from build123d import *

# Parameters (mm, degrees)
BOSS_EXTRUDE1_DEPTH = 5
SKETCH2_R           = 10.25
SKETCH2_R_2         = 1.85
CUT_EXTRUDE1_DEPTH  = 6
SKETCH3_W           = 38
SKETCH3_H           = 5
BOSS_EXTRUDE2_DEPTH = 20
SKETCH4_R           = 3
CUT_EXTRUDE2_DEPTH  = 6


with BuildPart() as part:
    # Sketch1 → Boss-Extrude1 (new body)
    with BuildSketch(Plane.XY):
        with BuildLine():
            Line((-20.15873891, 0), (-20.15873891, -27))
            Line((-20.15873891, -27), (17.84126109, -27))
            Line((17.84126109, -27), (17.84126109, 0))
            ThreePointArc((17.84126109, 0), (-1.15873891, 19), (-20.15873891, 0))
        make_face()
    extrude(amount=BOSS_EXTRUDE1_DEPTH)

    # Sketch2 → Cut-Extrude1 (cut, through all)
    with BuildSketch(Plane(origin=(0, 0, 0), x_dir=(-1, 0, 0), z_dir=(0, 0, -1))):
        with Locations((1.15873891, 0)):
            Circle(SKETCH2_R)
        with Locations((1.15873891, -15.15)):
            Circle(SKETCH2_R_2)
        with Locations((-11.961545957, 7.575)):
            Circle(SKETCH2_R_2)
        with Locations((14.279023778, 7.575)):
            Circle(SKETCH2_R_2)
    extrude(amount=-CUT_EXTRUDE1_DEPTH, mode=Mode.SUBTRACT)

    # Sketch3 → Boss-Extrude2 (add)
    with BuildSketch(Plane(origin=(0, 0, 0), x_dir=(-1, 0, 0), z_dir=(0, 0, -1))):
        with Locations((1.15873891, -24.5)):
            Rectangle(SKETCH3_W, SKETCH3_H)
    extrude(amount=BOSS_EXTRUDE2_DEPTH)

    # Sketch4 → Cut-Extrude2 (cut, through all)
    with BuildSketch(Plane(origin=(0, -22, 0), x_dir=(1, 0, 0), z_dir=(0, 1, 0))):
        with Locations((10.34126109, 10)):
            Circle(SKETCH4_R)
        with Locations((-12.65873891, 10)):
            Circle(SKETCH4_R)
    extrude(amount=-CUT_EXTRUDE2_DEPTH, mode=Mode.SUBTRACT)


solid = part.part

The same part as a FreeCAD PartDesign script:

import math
import FreeCAD as App
import Part
import Sketcher
from FreeCAD import Vector
Q = App.Units.Quantity

doc = App.newDocument("Part")
body = doc.addObject("PartDesign::Body", "Body")

sketch1 = doc.addObject("Sketcher::SketchObject", "Sketch")
body.addObject(sketch1)
sketch1.AttachmentSupport = (doc.XY_Plane, [""])
sketch1.MapMode = "FlatFace"
sketch1.addGeometry(Part.LineSegment(Vector(-20, 0, 0), Vector(-20, -27, 0)), False)
sketch1.addGeometry(Part.LineSegment(Vector(-20, -27, 0), Vector(18, -27, 0)), False)
sketch1.addGeometry(Part.LineSegment(Vector(18, -27, 0), Vector(18, 0, 0)), False)
sketch1.addGeometry(Part.ArcOfCircle(Part.Circle(Vector(-1, 0, 0), Vector(0, 0, 1), 19), math.radians(0), math.radians(180)), False)
sketch1.addConstraint(Sketcher.Constraint("Coincident", 0, 2, 1, 1))
sketch1.addConstraint(Sketcher.Constraint("Coincident", 1, 2, 2, 1))
sketch1.addConstraint(Sketcher.Constraint("Tangent", 2, 2, 3, 1))
sketch1.addConstraint(Sketcher.Constraint("Tangent", 3, 2, 0, 1))
sketch1.addConstraint(Sketcher.Constraint("Vertical", 0))
sketch1.addConstraint(Sketcher.Constraint("Horizontal", 1))
sketch1.addConstraint(Sketcher.Constraint("Vertical", 2))
sketch1.addConstraint(Sketcher.Constraint("PointOnObject", 3, 3, -1))
sketch1.addConstraint(Sketcher.Constraint("Radius", 3, Q("19 mm")))
sketch1.addConstraint(Sketcher.Constraint("DistanceY", 0, 2, 0, 1, Q("27 mm")))
sketch1.addConstraint(Sketcher.Constraint("DistanceX", 3, 3, -1, 1, Q("1.158739 mm")))
pad1 = doc.addObject("PartDesign::Pad", "Pad")
body.addObject(pad1)
pad1.Profile = sketch1
pad1.Length = 5

sketch2 = doc.addObject("Sketcher::SketchObject", "Sketch001")
body.addObject(sketch2)
sketch2.AttachmentSupport = (doc.XY_Plane, [""])
sketch2.MapMode = "FlatFace"
sketch2.addGeometry(Part.Circle(Vector(-1.2, 0, 0), Vector(0, 0, 1), 10.2), False)
sketch2.addGeometry(Part.Circle(Vector(-1.2, -15.2, 0), Vector(0, 0, 1), 1.9), False)
sketch2.addGeometry(Part.Circle(Vector(12, 7.6, 0), Vector(0, 0, 1), 1.9), False)
sketch2.addGeometry(Part.Circle(Vector(-14.3, 7.6, 0), Vector(0, 0, 1), 1.9), False)
sketch2.addConstraint(Sketcher.Constraint("Equal", 1, 2))
sketch2.addConstraint(Sketcher.Constraint("Equal", 2, 3))
sketch2.addConstraint(Sketcher.Constraint("PointOnObject", 0, 3, -1))
sketch2.addConstraint(Sketcher.Constraint("Horizontal", 2, 3, 3, 3))
sketch2.addConstraint(Sketcher.Constraint("Vertical", 0, 3, 1, 3))
sketch2.addConstraint(Sketcher.Constraint("Diameter", 0, Q("20.5 mm")))
sketch2.addConstraint(Sketcher.Constraint("Diameter", 1, Q("3.7 mm")))
sketch2.addConstraint(Sketcher.Constraint("DistanceY", 1, 3, -1, 1, Q("15.15 mm")))
sketch2.addConstraint(Sketcher.Constraint("DistanceY", -1, 1, 2, 3, Q("7.575 mm")))
sketch2.addConstraint(Sketcher.Constraint("DistanceX", 0, 3, -1, 1, Q("1.158739 mm")))
sketch2.addConstraint(Sketcher.Constraint("DistanceX", 3, 3, 2, 3, Q("26.24057 mm")))
sketch2.addConstraint(Sketcher.Constraint("DistanceX", -1, 1, 2, 3, Q("11.961546 mm")))
pocket1 = doc.addObject("PartDesign::Pocket", "Pocket")
body.addObject(pocket1)
pocket1.Profile = sketch2
pocket1.Type = "ThroughAll"
pocket1.Reversed = True

sketch3 = doc.addObject("Sketcher::SketchObject", "Sketch002")
body.addObject(sketch3)
sketch3.AttachmentSupport = (doc.XY_Plane, [""])
sketch3.MapMode = "FlatFace"
sketch3.addGeometry(Part.LineSegment(Vector(18, -22, 0), Vector(18, -27, 0)), False)
sketch3.addGeometry(Part.LineSegment(Vector(18, -27, 0), Vector(-20, -27, 0)), False)
sketch3.addGeometry(Part.LineSegment(Vector(-20, -27, 0), Vector(-20, -22, 0)), False)
sketch3.addGeometry(Part.LineSegment(Vector(-20, -22, 0), Vector(18, -22, 0)), False)
sketch3.addConstraint(Sketcher.Constraint("Coincident", 0, 2, 1, 1))
sketch3.addConstraint(Sketcher.Constraint("Coincident", 1, 2, 2, 1))
sketch3.addConstraint(Sketcher.Constraint("Coincident", 2, 2, 3, 1))
sketch3.addConstraint(Sketcher.Constraint("Coincident", 3, 2, 0, 1))
sketch3.addConstraint(Sketcher.Constraint("Vertical", 0))
sketch3.addConstraint(Sketcher.Constraint("Horizontal", 1))
sketch3.addConstraint(Sketcher.Constraint("Vertical", 2))
sketch3.addConstraint(Sketcher.Constraint("Horizontal", 3))
sketch3.addConstraint(Sketcher.Constraint("DistanceX", 1, 2, 1, 1, Q("38 mm")))
sketch3.addConstraint(Sketcher.Constraint("DistanceY", 0, 2, 0, 1, Q("5 mm")))
sketch3.addConstraint(Sketcher.Constraint("DistanceY", 0, 2, -1, 1, Q("27 mm")))
sketch3.addConstraint(Sketcher.Constraint("DistanceX", -1, 1, 0, 2, Q("17.841261 mm")))
pad2 = doc.addObject("PartDesign::Pad", "Pad001")
body.addObject(pad2)
pad2.Profile = sketch3
pad2.Length = 20
pad2.Reversed = True

sketch4 = doc.addObject("Sketcher::SketchObject", "Sketch003")
body.addObject(sketch4)
sketch4.AttachmentSupport = (doc.XZ_Plane, [""])
sketch4.MapMode = "FlatFace"
sketch4.AttachmentOffset = App.Placement(Vector(0, 0, 22), App.Rotation())
sketch4.addGeometry(Part.Circle(Vector(10.3, -10, 0), Vector(0, 0, 1), 3), False)
sketch4.addGeometry(Part.Circle(Vector(-12.7, -10, 0), Vector(0, 0, 1), 3), False)
sketch4.addConstraint(Sketcher.Constraint("Equal", 0, 1))
sketch4.addConstraint(Sketcher.Constraint("Horizontal", 0, 3, 1, 3))
sketch4.addConstraint(Sketcher.Constraint("Diameter", 0, Q("6 mm")))
sketch4.addConstraint(Sketcher.Constraint("DistanceY", 0, 3, -1, 1, Q("10 mm")))
sketch4.addConstraint(Sketcher.Constraint("DistanceX", 1, 3, 0, 3, Q("23 mm")))
sketch4.addConstraint(Sketcher.Constraint("DistanceX", -1, 1, 0, 3, Q("10.341261 mm")))
pocket2 = doc.addObject("PartDesign::Pocket", "Pocket001")
body.addObject(pocket2)
pocket2.Profile = sketch4
pocket2.Type = "ThroughAll"
pocket2.Reversed = True

doc.recompute()
